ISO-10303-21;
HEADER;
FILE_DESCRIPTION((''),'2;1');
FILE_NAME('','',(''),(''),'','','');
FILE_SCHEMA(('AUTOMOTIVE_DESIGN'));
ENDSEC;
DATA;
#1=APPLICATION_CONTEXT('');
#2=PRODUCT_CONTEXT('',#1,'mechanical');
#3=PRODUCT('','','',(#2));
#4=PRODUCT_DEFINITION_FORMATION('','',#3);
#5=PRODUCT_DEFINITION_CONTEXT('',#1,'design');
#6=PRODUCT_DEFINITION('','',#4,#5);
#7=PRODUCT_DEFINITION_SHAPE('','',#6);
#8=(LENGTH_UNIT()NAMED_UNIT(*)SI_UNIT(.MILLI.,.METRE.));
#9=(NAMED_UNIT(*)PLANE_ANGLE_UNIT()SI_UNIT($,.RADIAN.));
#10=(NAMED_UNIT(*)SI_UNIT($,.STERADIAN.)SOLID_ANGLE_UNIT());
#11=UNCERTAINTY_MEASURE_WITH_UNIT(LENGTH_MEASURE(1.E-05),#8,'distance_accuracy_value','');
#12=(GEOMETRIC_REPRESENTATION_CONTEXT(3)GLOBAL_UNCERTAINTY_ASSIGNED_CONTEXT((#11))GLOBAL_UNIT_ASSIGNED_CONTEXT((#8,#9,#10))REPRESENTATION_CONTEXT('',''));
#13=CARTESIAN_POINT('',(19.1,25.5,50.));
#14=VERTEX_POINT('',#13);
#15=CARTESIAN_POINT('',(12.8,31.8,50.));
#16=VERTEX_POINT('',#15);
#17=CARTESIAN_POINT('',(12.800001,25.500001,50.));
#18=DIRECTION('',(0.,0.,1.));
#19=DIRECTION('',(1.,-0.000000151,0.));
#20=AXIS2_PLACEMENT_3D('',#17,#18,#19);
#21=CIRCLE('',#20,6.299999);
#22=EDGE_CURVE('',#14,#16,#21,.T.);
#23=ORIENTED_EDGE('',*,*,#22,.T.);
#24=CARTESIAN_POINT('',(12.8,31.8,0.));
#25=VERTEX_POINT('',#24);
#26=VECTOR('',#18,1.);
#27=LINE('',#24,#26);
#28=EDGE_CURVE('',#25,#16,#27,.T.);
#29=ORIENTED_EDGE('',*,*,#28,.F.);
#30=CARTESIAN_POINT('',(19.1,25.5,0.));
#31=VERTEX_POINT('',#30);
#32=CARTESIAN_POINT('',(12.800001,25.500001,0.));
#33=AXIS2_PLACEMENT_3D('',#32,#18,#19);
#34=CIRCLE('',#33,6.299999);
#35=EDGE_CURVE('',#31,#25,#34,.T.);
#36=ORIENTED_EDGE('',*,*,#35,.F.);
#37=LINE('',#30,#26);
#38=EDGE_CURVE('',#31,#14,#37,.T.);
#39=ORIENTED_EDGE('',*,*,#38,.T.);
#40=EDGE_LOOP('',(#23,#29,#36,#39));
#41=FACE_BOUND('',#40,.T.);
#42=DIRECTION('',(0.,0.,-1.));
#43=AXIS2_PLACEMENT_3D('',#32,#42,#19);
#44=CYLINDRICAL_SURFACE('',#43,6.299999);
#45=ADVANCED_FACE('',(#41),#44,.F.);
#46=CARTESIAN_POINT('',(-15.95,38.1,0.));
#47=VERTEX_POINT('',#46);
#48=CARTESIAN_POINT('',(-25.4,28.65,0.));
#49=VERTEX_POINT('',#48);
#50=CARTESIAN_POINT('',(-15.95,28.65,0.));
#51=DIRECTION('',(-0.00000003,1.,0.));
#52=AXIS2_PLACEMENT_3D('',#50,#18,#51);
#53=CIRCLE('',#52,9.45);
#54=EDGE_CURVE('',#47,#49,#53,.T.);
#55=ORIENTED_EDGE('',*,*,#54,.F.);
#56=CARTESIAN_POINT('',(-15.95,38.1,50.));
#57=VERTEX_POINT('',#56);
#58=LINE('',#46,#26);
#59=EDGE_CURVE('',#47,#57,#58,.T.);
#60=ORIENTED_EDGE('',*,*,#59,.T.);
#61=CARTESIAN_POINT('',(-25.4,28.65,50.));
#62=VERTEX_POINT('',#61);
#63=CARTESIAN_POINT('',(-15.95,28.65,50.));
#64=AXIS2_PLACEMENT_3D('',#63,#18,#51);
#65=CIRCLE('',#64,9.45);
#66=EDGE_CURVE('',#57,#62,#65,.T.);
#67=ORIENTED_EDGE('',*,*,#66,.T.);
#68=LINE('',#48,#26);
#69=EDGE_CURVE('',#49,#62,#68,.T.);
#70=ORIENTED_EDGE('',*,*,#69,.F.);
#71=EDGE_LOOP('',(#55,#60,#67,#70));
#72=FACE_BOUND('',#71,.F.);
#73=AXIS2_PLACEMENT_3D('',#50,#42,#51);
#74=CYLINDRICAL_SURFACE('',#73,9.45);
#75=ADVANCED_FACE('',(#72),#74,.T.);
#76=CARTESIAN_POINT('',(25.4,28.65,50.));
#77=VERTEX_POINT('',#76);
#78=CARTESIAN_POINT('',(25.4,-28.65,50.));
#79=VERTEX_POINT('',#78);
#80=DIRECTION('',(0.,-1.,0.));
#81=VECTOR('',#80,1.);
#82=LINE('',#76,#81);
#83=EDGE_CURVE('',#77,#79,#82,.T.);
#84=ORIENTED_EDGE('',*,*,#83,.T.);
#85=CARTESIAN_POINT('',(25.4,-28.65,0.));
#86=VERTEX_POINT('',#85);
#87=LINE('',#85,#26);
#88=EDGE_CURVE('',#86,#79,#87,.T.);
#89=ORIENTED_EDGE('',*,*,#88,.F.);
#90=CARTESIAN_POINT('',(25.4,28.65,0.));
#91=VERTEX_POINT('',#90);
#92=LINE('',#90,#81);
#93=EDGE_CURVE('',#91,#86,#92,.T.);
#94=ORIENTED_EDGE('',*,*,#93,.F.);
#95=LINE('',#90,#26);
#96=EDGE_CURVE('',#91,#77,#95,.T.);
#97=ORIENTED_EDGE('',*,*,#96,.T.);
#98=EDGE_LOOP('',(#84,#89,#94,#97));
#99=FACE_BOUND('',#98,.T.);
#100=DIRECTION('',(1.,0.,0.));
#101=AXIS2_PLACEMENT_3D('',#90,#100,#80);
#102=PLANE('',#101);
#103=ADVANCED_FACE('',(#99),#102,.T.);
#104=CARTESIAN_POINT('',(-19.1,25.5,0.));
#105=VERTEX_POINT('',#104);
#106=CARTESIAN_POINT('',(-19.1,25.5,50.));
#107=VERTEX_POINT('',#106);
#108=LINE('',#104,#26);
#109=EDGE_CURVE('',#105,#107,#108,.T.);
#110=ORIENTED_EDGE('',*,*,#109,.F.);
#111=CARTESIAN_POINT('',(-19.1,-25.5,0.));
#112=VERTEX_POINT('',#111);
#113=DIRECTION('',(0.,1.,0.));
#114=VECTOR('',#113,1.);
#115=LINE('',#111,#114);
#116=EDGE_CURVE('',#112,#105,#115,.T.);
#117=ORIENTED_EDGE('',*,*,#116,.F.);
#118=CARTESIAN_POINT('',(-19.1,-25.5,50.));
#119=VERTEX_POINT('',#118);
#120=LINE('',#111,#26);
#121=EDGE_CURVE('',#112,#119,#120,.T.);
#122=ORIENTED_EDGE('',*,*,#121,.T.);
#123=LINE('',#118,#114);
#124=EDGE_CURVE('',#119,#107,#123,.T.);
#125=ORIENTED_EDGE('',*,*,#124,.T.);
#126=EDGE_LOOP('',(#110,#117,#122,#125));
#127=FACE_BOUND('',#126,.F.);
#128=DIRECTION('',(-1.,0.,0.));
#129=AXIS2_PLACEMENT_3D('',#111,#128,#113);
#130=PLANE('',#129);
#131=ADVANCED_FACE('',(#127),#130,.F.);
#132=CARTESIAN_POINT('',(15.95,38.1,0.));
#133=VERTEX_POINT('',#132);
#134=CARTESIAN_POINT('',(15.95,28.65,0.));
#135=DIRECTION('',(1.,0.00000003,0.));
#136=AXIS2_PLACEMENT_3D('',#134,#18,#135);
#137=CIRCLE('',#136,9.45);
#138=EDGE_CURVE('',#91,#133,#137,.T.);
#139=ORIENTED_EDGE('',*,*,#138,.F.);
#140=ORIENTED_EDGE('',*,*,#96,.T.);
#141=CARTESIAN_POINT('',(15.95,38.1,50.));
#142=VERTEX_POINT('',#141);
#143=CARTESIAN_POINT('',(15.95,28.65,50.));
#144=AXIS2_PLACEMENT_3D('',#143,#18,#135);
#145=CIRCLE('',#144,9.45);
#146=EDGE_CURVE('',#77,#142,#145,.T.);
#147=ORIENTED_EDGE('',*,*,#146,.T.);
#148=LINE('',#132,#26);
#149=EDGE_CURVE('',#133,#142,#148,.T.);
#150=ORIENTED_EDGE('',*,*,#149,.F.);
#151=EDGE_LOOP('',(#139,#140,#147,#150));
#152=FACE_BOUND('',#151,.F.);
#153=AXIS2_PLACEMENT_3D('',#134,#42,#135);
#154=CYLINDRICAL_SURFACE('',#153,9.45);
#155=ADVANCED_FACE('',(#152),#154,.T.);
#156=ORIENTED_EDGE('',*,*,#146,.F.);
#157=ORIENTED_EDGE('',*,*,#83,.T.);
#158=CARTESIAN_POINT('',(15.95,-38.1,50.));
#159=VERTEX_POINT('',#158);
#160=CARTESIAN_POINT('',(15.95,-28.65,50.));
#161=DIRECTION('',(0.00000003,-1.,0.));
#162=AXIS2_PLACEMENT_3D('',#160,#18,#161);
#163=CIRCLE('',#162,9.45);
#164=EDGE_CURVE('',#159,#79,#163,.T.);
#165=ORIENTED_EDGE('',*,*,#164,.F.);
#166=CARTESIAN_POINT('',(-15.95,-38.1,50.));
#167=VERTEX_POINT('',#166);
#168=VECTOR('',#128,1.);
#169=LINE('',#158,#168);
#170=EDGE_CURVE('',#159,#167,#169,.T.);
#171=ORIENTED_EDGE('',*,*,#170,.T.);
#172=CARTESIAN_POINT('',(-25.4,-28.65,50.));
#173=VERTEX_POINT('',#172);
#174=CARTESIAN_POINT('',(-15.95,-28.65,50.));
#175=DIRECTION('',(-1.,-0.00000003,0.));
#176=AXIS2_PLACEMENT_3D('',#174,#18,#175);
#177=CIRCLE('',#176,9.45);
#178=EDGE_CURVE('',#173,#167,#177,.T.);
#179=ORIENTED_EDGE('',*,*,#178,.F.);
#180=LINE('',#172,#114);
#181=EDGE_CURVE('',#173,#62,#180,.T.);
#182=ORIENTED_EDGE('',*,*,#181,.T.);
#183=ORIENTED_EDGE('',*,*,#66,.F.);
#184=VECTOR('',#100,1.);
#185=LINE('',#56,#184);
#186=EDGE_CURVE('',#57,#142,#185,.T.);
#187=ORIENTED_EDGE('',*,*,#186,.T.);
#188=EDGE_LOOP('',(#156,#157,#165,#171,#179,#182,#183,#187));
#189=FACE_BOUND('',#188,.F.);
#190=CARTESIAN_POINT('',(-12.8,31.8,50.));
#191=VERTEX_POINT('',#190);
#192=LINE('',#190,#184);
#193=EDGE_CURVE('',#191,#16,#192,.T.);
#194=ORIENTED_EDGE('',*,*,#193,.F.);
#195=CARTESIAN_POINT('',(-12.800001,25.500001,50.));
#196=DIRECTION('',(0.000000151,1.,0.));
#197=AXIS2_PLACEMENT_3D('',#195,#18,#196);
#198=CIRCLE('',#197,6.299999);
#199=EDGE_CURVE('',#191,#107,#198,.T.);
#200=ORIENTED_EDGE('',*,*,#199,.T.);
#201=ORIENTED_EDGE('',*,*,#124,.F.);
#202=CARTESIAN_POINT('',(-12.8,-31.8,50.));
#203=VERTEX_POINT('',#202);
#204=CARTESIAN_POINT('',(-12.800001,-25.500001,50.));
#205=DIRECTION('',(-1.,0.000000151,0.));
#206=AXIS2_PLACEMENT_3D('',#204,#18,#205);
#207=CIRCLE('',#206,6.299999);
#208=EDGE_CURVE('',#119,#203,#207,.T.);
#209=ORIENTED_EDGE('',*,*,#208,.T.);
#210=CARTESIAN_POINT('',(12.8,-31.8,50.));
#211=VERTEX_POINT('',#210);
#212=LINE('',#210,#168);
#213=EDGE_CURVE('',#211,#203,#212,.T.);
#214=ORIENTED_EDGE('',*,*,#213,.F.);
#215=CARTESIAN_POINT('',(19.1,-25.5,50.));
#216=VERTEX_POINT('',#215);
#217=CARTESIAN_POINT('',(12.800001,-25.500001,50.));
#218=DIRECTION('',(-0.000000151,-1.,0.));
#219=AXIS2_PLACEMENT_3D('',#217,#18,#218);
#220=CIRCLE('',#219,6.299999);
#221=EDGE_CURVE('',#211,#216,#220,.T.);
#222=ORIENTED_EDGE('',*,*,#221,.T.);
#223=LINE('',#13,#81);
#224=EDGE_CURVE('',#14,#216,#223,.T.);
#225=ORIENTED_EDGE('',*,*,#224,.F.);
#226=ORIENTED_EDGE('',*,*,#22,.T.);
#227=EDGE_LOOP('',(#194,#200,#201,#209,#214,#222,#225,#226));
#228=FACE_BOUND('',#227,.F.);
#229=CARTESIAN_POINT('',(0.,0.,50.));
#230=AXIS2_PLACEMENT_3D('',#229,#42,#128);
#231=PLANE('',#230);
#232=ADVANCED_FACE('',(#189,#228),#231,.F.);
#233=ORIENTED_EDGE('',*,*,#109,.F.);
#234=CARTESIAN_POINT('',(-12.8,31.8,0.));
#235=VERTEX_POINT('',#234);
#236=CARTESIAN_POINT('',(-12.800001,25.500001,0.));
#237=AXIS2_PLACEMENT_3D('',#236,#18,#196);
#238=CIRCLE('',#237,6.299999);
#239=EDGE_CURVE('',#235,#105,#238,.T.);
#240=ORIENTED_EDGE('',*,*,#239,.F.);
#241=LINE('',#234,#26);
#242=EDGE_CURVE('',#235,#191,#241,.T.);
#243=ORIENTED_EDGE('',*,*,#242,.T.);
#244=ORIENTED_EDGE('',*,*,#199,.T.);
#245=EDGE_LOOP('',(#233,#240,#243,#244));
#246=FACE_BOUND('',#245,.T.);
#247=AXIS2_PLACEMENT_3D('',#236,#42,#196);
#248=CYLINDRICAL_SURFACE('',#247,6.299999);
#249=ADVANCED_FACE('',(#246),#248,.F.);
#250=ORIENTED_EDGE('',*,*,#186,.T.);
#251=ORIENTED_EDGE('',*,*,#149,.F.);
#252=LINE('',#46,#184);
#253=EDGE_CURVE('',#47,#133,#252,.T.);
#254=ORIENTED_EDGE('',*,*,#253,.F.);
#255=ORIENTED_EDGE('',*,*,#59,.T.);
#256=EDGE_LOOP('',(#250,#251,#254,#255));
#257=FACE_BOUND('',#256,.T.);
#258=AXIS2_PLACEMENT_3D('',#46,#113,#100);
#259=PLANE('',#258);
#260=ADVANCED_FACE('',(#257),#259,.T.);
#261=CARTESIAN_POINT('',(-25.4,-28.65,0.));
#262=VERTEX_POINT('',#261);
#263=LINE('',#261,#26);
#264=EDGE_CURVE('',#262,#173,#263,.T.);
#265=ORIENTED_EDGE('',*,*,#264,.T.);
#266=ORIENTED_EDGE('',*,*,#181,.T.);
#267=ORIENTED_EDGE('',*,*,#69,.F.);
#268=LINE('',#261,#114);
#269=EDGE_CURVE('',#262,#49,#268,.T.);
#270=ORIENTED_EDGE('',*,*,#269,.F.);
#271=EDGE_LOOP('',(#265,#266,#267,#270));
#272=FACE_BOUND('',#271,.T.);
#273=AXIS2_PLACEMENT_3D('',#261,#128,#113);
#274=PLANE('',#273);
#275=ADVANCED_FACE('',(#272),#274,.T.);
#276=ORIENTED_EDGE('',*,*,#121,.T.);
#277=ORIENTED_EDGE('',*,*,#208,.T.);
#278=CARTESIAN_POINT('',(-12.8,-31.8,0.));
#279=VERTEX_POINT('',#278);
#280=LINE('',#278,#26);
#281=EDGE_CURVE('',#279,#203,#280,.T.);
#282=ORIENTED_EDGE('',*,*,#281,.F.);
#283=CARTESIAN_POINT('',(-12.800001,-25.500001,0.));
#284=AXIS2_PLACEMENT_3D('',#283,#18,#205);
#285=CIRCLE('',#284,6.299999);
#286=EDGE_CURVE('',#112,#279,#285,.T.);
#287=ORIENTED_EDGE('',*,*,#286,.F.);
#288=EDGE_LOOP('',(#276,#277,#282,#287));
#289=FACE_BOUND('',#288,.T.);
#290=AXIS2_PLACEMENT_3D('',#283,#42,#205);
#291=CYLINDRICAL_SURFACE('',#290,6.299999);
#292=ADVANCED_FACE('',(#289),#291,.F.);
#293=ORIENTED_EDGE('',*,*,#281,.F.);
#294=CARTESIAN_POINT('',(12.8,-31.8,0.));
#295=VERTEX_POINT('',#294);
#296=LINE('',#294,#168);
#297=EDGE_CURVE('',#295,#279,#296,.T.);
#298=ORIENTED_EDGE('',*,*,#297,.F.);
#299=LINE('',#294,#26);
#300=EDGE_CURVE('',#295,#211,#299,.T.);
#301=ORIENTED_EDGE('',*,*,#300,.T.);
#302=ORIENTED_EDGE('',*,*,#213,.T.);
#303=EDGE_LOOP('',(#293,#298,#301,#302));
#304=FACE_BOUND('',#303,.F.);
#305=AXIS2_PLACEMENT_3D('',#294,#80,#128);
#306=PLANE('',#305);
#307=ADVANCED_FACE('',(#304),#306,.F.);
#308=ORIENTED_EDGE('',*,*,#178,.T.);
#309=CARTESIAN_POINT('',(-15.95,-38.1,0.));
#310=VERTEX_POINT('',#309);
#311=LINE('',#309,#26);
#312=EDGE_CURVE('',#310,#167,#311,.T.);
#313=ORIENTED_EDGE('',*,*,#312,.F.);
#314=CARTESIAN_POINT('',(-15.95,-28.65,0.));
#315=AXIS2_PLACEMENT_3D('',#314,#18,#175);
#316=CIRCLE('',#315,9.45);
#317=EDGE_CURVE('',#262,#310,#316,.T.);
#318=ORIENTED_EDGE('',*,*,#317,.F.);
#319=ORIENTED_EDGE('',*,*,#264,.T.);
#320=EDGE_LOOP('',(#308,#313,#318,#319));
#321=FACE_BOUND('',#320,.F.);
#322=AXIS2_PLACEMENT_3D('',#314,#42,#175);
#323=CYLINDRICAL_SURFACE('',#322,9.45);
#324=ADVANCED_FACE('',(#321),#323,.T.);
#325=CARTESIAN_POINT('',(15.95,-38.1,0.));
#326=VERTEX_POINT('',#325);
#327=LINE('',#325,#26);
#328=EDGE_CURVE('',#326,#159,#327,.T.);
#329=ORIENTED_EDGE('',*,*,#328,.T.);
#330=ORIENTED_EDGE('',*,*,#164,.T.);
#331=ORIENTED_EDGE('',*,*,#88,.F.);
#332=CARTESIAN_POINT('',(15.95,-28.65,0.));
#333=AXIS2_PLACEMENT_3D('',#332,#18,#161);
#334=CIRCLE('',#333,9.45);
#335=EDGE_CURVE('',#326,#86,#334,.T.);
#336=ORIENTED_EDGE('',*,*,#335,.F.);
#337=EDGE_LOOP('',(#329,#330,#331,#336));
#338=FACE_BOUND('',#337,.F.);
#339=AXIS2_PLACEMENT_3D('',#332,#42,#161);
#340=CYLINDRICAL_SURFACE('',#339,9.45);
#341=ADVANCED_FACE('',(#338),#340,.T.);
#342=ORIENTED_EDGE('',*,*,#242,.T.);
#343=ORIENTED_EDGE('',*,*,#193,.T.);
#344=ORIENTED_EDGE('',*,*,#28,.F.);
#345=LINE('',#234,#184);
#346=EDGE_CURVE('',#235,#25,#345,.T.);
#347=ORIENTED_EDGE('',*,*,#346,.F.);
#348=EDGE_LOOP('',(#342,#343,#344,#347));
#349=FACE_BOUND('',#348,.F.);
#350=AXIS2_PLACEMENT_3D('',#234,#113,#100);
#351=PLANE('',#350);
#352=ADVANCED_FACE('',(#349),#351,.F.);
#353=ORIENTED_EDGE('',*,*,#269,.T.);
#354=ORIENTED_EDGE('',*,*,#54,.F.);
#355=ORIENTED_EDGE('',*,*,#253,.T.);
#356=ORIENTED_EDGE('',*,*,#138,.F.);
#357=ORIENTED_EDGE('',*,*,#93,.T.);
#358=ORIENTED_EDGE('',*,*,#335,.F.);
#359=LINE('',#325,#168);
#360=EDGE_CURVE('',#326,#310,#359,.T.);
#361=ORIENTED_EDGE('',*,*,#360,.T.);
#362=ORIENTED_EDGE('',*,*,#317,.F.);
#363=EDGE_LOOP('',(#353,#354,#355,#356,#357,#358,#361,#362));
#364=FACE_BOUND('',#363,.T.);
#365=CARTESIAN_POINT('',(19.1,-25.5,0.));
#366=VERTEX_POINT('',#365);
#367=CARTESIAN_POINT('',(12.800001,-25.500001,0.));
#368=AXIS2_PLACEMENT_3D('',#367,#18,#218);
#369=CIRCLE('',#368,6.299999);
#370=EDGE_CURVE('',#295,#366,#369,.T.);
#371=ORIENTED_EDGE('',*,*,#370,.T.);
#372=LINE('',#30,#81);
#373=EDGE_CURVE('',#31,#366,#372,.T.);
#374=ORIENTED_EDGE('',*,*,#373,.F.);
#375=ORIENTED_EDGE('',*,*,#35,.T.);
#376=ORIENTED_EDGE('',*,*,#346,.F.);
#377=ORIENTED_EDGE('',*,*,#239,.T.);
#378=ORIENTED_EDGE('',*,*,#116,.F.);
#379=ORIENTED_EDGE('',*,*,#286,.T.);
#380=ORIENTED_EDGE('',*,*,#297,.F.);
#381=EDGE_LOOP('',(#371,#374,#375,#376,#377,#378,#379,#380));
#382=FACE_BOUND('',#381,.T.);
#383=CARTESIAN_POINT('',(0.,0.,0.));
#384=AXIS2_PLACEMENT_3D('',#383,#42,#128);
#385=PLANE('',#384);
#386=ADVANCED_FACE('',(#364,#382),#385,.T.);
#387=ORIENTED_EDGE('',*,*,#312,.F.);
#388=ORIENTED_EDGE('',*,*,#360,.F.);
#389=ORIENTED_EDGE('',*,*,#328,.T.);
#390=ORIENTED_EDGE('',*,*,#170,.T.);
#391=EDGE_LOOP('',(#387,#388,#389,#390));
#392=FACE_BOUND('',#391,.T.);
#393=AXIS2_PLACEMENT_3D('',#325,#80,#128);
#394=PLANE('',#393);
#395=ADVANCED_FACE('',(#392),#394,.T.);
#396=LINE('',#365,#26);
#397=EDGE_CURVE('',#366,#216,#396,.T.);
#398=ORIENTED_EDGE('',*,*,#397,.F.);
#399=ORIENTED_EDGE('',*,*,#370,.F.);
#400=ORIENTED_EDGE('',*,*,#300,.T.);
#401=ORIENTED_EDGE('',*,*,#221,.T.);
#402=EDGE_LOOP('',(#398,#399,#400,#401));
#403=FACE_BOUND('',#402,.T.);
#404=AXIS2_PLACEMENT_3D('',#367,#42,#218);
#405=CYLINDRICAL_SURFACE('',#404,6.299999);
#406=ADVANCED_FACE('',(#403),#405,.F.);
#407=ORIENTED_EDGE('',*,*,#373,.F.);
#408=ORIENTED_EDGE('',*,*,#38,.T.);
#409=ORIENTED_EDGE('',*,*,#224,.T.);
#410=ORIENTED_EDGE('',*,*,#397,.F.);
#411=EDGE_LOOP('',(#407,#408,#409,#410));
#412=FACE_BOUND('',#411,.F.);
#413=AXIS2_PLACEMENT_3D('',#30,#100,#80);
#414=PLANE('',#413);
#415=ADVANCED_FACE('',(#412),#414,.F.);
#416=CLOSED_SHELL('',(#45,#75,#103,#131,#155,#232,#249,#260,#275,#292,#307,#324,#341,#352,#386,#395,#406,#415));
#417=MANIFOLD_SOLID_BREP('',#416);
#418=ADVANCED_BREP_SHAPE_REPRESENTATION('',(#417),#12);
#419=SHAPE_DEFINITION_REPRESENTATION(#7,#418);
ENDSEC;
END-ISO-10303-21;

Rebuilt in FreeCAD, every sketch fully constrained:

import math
import FreeCAD as App
import Part
import Sketcher
Q = App.Units.Quantity

doc = App.newDocument("Part")
body = doc.addObject("PartDesign::Body", "Body")

# Sketch on XY plane
sketch1 = doc.addObject("Sketcher::SketchObject", "Sketch")
body.addObject(sketch1)
sketch1.AttachmentSupport = (doc.XY_Plane, [""])
sketch1.MapMode = "FlatFace"
sketch1.addGeometry([
    Part.LineSegment(App.Vector(16, 38, 0), App.Vector(-16, 38, 0)),  # 0
    Part.ArcOfCircle(Part.Circle(App.Vector(-16, 29, 0), App.Vector(0, 0, 1), 9), math.radians(90), math.radians(180)),  # 1
    Part.LineSegment(App.Vector(-25, 29, 0), App.Vector(-25, -29, 0)),  # 2
    Part.ArcOfCircle(Part.Circle(App.Vector(-16, -29, 0), App.Vector(0, 0, 1), 9), math.radians(-180), math.radians(-90)),  # 3
    Part.LineSegment(App.Vector(-16, -38, 0), App.Vector(16, -38, 0)),  # 4
    Part.ArcOfCircle(Part.Circle(App.Vector(16, -29, 0), App.Vector(0, 0, 1), 9), math.radians(-90), math.radians(0)),  # 5
    Part.LineSegment(App.Vector(25, -29, 0), App.Vector(25, 29, 0)),  # 6
    Part.ArcOfCircle(Part.Circle(App.Vector(16, 29, 0), App.Vector(0, 0, 1), 9), math.radians(0), math.radians(90)),  # 7
    Part.LineSegment(App.Vector(-13, 32, 0), App.Vector(13, 32, 0)),  # 8
    Part.ArcOfCircle(Part.Circle(App.Vector(13, 26, 0), App.Vector(0, 0, 1), 6), math.radians(0), math.radians(90)),  # 9
    Part.LineSegment(App.Vector(19, 26, 0), App.Vector(19, -26, 0)),  # 10
    Part.ArcOfCircle(Part.Circle(App.Vector(13, -26, 0), App.Vector(0, 0, 1), 6), math.radians(-90), math.radians(0)),  # 11
    Part.LineSegment(App.Vector(13, -32, 0), App.Vector(-13, -32, 0)),  # 12
    Part.ArcOfCircle(Part.Circle(App.Vector(-13, -26, 0), App.Vector(0, 0, 1), 6), math.radians(180), math.radians(270)),  # 13
    Part.LineSegment(App.Vector(-19, -26, 0), App.Vector(-19, 26, 0)),  # 14
    Part.ArcOfCircle(Part.Circle(App.Vector(-13, 26, 0), App.Vector(0, 0, 1), 6), math.radians(90), math.radians(180)),  # 15
], False)
sketch1.addConstraint([
    Sketcher.Constraint("Tangent", 0, 2, 1, 1),
    Sketcher.Constraint("Tangent", 1, 2, 2, 1),
    Sketcher.Constraint("Tangent", 2, 2, 3, 1),
    Sketcher.Constraint("Tangent", 3, 2, 4, 1),
    Sketcher.Constraint("Tangent", 4, 2, 5, 1),
    Sketcher.Constraint("Tangent", 5, 2, 6, 1),
    Sketcher.Constraint("Tangent", 6, 2, 7, 1),
    Sketcher.Constraint("Tangent", 7, 2, 0, 1),
    Sketcher.Constraint("Tangent", 8, 2, 9, 2),
    Sketcher.Constraint("Tangent", 9, 1, 10, 1),
    Sketcher.Constraint("Tangent", 10, 2, 11, 2),
    Sketcher.Constraint("Tangent", 11, 1, 12, 1),
    Sketcher.Constraint("Tangent", 12, 2, 13, 2),
    Sketcher.Constraint("Tangent", 13, 1, 14, 1),
    Sketcher.Constraint("Tangent", 14, 2, 15, 2),
    Sketcher.Constraint("Tangent", 15, 1, 8, 1),
    Sketcher.Constraint("Horizontal", 0),
    Sketcher.Constraint("Vertical", 2),
    Sketcher.Constraint("Horizontal", 4),
    Sketcher.Constraint("Vertical", 6),
    Sketcher.Constraint("Horizontal", 8),
    Sketcher.Constraint("Vertical", 10),
    Sketcher.Constraint("Horizontal", 12),
    Sketcher.Constraint("Vertical", 14),
    Sketcher.Constraint("Equal", 1, 3),
    Sketcher.Constraint("Equal", 3, 5),
    Sketcher.Constraint("Equal", 5, 7),
    Sketcher.Constraint("Equal", 9, 11),
    Sketcher.Constraint("Equal", 11, 13),
    Sketcher.Constraint("Equal", 13, 15),
    Sketcher.Constraint("Symmetric", 1, 3, 5, 3, -1, 1),
    Sketcher.Constraint("Symmetric", 9, 3, 13, 3, -1, 1),
    Sketcher.Constraint("Radius", 9, Q("6.299999 mm")),
    Sketcher.Constraint("DistanceY", 10, 2, 10, 1, Q("51 mm")),
    Sketcher.Constraint("Radius", 1, Q("9.45 mm")),
    Sketcher.Constraint("DistanceX", 0, 2, 0, 1, Q("31.9 mm")),
    Sketcher.Constraint("DistanceX", 8, 1, 8, 2, Q("25.6 mm")),
    Sketcher.Constraint("DistanceY", 2, 2, 2, 1, Q("57.3 mm")),
])
pad1 = doc.addObject("PartDesign::Pad", "Pad")
body.addObject(pad1)
pad1.Profile = sketch1
pad1.Length = 50

doc.recompute()
